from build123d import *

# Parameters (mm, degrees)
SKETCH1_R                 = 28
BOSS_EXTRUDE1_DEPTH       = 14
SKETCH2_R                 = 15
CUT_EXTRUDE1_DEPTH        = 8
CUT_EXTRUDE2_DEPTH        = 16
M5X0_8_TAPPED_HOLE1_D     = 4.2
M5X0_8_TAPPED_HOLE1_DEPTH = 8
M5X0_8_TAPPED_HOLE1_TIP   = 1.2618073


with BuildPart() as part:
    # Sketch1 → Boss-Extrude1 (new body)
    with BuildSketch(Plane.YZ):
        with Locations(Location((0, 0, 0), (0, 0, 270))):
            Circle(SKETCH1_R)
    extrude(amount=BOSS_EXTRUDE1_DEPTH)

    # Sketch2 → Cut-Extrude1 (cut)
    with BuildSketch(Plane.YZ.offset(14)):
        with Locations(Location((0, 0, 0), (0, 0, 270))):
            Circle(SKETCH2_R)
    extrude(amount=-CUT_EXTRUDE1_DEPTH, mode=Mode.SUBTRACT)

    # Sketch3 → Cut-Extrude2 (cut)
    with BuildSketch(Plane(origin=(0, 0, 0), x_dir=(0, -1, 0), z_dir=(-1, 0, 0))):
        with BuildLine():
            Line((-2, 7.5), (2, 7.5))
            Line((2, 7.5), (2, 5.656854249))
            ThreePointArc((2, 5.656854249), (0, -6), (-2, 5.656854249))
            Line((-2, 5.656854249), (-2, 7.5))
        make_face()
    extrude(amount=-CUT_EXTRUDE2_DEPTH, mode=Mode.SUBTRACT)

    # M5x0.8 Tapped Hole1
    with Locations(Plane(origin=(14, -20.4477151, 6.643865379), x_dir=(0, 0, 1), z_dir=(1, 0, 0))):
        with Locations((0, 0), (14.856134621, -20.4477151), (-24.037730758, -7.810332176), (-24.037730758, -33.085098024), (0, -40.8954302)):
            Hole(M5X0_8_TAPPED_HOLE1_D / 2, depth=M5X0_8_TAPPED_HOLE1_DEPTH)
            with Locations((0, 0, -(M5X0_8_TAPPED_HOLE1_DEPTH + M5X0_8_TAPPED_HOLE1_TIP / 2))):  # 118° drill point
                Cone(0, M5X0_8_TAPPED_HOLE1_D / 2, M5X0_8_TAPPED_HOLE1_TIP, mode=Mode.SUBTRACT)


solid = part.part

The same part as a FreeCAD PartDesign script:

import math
import FreeCAD as App
import Part
import Sketcher

doc = App.newDocument("Part")
params = doc.addObject("Spreadsheet::Sheet", "Params")
for row, (alias, value) in enumerate([
    ("sketch1_diameter", "56 mm"),
    ("pad1_length", "14 mm"),
    ("sketch2_diameter", "30 mm"),
    ("pocket1_length", "8 mm"),
    ("sketch3_radius", "6 mm"),
    ("sketch3_width", "4 mm"),
    ("pocket2_length", "16 mm"),
    ("sketch4_diameter", "4.2 mm"),
    ("hole_diameter", "4.2 mm"),
    ("hole_depth", "8 mm"),
], start=1):
    params.set(f"A{row}", alias)
    params.set(f"B{row}", "=" + value)
    params.setAlias(f"B{row}", alias)

body = doc.addObject("PartDesign::Body", "Body")

# Sketch on YZ plane
sketch1 = doc.addObject("Sketcher::SketchObject", "Sketch")
body.addObject(sketch1)
sketch1.AttachmentSupport = (doc.YZ_Plane, [""])
sketch1.MapMode = "FlatFace"
sketch1.addGeometry(Part.Circle(App.Vector(0, 0, 0), App.Vector(0, 0, 1), 28), False)
sketch1.addConstraint(Sketcher.Constraint("Coincident", 0, 3, -1, 1))
sketch1.addConstraint(Sketcher.Constraint("Diameter", 0, 56.0))
sketch1.setExpression("Constraints[1]", "Params.sketch1_diameter")
pad1 = doc.addObject("PartDesign::Pad", "Pad")
body.addObject(pad1)
pad1.Profile = sketch1
pad1.setExpression("Length", "Params.pad1_length")

# Sketch on YZ plane
sketch2 = doc.addObject("Sketcher::SketchObject", "Sketch001")
body.addObject(sketch2)
sketch2.AttachmentSupport = (doc.YZ_Plane, [""])
sketch2.MapMode = "FlatFace"
sketch2.AttachmentOffset = App.Placement(App.Vector(0, 0, 14), App.Rotation())
sketch2.addGeometry(Part.Circle(App.Vector(0, 0, 0), App.Vector(0, 0, 1), 15), False)
sketch2.addConstraint(Sketcher.Constraint("Coincident", 0, 3, -1, 1))
sketch2.addConstraint(Sketcher.Constraint("Diameter", 0, 30.0))
sketch2.setExpression("Constraints[1]", "Params.sketch2_diameter")
pocket1 = doc.addObject("PartDesign::Pocket", "Pocket")
body.addObject(pocket1)
pocket1.Profile = sketch2
pocket1.setExpression("Length", "Params.pocket1_length")

# Sketch on YZ plane
sketch3 = doc.addObject("Sketcher::SketchObject", "Sketch002")
body.addObject(sketch3)
sketch3.AttachmentSupport = (doc.YZ_Plane, [""])
sketch3.MapMode = "FlatFace"
sketch3.addGeometry(Part.LineSegment(App.Vector(-2, 7.5, 0), App.Vector(2, 7.5, 0)), False)
sketch3.addGeometry(Part.LineSegment(App.Vector(2, 7.5, 0), App.Vector(2, 5.7, 0)), False)
sketch3.addGeometry(Part.ArcOfCircle(Part.Circle(App.Vector(0, 0, 0), App.Vector(0, 0, 1), 6), math.radians(109), math.radians(431)), False)
sketch3.addGeometry(Part.LineSegment(App.Vector(-2, 5.7, 0), App.Vector(-2, 7.5, 0)), False)
sketch3.addConstraint(Sketcher.Constraint("Coincident", 0, 2, 1, 1))
sketch3.addConstraint(Sketcher.Constraint("Coincident", 1, 2, 2, 2))
sketch3.addConstraint(Sketcher.Constraint("Coincident", 2, 1, 3, 1))
sketch3.addConstraint(Sketcher.Constraint("Coincident", 3, 2, 0, 1))
sketch3.addConstraint(Sketcher.Constraint("Horizontal", 0))
sketch3.addConstraint(Sketcher.Constraint("Vertical", 1))
sketch3.addConstraint(Sketcher.Constraint("Vertical", 3))
sketch3.addConstraint(Sketcher.Constraint("Coincident", 2, 3, -1, 1))
sketch3.addConstraint(Sketcher.Constraint("Horizontal", 1, 2, 2, 1))
sketch3.addConstraint(Sketcher.Constraint("Radius", 2, 6.0))
sketch3.addConstraint(Sketcher.Constraint("DistanceX", 0, 1, 0, 2, 4.0))
sketch3.addConstraint(Sketcher.Constraint("DistanceY", -1, 1, 0, 2, 7.5))
sketch3.setExpression("Constraints[9]", "Params.sketch3_radius")
sketch3.setExpression("Constraints[10]", "Params.sketch3_width")
pocket2 = doc.addObject("PartDesign::Pocket", "Pocket001")
body.addObject(pocket2)
pocket2.Profile = sketch3
pocket2.setExpression("Length", "Params.pocket2_length")
pocket2.Reversed = True

# Sketch on YZ plane
sketch4 = doc.addObject("Sketcher::SketchObject", "Sketch003")
body.addObject(sketch4)
sketch4.AttachmentSupport = (doc.YZ_Plane, [""])
sketch4.MapMode = "FlatFace"
sketch4.AttachmentOffset = App.Placement(App.Vector(0, 0, 14), App.Rotation())
sketch4.addGeometry(Part.Circle(App.Vector(-20.4, 6.6, 0), App.Vector(0, 0, 1), 2.1), False)
sketch4.addGeometry(Part.Circle(App.Vector(0, 21.5, 0), App.Vector(0, 0, 1), 2.1), False)
sketch4.addGeometry(Part.Circle(App.Vector(-12.6, -17.4, 0), App.Vector(0, 0, 1), 2.1), False)
sketch4.addGeometry(Part.Circle(App.Vector(12.6, -17.4, 0), App.Vector(0, 0, 1), 2.1), False)
sketch4.addGeometry(Part.Circle(App.Vector(20.4, 6.6, 0), App.Vector(0, 0, 1), 2.1), False)
sketch4.addConstraint(Sketcher.Constraint("Equal", 0, 1))
sketch4.addConstraint(Sketcher.Constraint("Equal", 1, 2))
sketch4.addConstraint(Sketcher.Constraint("Equal", 2, 3))
sketch4.addConstraint(Sketcher.Constraint("Equal", 3, 4))
sketch4.addConstraint(Sketcher.Constraint("Symmetric", 2, 3, 3, 3, -2))
sketch4.addConstraint(Sketcher.Constraint("Symmetric", 0, 3, 4, 3, -2))
sketch4.addConstraint(Sketcher.Constraint("PointOnObject", 1, 3, -2))
sketch4.addConstraint(Sketcher.Constraint("Diameter", 0, 4.2))
sketch4.addConstraint(Sketcher.Constraint("DistanceY", -1, 1, 1, 3, 21.5))
sketch4.addConstraint(Sketcher.Constraint("DistanceX", 0, 3, 3, 3, 33.085098))
sketch4.addConstraint(Sketcher.Constraint("DistanceY", 2, 3, 0, 3, 24.037731))
sketch4.addConstraint(Sketcher.Constraint("DistanceX", 0, 3, 4, 3, 40.89543))
sketch4.addConstraint(Sketcher.Constraint("DistanceY", -1, 1, 0, 3, 6.643865))
sketch4.setExpression("Constraints[7]", "Params.sketch4_diameter")
doc.recompute()
hole = doc.addObject("PartDesign::Hole", "Hole")
body.addObject(hole)
hole.Profile = sketch4
hole.ThreadType = "None"
hole.setExpression("Diameter", "Params.hole_diameter")
hole.DepthType = "Dimension"
hole.setExpression("Depth", "Params.hole_depth")
hole.DrillPoint = "Angled"
hole.DrillPointAngle = 118

doc.recompute()
